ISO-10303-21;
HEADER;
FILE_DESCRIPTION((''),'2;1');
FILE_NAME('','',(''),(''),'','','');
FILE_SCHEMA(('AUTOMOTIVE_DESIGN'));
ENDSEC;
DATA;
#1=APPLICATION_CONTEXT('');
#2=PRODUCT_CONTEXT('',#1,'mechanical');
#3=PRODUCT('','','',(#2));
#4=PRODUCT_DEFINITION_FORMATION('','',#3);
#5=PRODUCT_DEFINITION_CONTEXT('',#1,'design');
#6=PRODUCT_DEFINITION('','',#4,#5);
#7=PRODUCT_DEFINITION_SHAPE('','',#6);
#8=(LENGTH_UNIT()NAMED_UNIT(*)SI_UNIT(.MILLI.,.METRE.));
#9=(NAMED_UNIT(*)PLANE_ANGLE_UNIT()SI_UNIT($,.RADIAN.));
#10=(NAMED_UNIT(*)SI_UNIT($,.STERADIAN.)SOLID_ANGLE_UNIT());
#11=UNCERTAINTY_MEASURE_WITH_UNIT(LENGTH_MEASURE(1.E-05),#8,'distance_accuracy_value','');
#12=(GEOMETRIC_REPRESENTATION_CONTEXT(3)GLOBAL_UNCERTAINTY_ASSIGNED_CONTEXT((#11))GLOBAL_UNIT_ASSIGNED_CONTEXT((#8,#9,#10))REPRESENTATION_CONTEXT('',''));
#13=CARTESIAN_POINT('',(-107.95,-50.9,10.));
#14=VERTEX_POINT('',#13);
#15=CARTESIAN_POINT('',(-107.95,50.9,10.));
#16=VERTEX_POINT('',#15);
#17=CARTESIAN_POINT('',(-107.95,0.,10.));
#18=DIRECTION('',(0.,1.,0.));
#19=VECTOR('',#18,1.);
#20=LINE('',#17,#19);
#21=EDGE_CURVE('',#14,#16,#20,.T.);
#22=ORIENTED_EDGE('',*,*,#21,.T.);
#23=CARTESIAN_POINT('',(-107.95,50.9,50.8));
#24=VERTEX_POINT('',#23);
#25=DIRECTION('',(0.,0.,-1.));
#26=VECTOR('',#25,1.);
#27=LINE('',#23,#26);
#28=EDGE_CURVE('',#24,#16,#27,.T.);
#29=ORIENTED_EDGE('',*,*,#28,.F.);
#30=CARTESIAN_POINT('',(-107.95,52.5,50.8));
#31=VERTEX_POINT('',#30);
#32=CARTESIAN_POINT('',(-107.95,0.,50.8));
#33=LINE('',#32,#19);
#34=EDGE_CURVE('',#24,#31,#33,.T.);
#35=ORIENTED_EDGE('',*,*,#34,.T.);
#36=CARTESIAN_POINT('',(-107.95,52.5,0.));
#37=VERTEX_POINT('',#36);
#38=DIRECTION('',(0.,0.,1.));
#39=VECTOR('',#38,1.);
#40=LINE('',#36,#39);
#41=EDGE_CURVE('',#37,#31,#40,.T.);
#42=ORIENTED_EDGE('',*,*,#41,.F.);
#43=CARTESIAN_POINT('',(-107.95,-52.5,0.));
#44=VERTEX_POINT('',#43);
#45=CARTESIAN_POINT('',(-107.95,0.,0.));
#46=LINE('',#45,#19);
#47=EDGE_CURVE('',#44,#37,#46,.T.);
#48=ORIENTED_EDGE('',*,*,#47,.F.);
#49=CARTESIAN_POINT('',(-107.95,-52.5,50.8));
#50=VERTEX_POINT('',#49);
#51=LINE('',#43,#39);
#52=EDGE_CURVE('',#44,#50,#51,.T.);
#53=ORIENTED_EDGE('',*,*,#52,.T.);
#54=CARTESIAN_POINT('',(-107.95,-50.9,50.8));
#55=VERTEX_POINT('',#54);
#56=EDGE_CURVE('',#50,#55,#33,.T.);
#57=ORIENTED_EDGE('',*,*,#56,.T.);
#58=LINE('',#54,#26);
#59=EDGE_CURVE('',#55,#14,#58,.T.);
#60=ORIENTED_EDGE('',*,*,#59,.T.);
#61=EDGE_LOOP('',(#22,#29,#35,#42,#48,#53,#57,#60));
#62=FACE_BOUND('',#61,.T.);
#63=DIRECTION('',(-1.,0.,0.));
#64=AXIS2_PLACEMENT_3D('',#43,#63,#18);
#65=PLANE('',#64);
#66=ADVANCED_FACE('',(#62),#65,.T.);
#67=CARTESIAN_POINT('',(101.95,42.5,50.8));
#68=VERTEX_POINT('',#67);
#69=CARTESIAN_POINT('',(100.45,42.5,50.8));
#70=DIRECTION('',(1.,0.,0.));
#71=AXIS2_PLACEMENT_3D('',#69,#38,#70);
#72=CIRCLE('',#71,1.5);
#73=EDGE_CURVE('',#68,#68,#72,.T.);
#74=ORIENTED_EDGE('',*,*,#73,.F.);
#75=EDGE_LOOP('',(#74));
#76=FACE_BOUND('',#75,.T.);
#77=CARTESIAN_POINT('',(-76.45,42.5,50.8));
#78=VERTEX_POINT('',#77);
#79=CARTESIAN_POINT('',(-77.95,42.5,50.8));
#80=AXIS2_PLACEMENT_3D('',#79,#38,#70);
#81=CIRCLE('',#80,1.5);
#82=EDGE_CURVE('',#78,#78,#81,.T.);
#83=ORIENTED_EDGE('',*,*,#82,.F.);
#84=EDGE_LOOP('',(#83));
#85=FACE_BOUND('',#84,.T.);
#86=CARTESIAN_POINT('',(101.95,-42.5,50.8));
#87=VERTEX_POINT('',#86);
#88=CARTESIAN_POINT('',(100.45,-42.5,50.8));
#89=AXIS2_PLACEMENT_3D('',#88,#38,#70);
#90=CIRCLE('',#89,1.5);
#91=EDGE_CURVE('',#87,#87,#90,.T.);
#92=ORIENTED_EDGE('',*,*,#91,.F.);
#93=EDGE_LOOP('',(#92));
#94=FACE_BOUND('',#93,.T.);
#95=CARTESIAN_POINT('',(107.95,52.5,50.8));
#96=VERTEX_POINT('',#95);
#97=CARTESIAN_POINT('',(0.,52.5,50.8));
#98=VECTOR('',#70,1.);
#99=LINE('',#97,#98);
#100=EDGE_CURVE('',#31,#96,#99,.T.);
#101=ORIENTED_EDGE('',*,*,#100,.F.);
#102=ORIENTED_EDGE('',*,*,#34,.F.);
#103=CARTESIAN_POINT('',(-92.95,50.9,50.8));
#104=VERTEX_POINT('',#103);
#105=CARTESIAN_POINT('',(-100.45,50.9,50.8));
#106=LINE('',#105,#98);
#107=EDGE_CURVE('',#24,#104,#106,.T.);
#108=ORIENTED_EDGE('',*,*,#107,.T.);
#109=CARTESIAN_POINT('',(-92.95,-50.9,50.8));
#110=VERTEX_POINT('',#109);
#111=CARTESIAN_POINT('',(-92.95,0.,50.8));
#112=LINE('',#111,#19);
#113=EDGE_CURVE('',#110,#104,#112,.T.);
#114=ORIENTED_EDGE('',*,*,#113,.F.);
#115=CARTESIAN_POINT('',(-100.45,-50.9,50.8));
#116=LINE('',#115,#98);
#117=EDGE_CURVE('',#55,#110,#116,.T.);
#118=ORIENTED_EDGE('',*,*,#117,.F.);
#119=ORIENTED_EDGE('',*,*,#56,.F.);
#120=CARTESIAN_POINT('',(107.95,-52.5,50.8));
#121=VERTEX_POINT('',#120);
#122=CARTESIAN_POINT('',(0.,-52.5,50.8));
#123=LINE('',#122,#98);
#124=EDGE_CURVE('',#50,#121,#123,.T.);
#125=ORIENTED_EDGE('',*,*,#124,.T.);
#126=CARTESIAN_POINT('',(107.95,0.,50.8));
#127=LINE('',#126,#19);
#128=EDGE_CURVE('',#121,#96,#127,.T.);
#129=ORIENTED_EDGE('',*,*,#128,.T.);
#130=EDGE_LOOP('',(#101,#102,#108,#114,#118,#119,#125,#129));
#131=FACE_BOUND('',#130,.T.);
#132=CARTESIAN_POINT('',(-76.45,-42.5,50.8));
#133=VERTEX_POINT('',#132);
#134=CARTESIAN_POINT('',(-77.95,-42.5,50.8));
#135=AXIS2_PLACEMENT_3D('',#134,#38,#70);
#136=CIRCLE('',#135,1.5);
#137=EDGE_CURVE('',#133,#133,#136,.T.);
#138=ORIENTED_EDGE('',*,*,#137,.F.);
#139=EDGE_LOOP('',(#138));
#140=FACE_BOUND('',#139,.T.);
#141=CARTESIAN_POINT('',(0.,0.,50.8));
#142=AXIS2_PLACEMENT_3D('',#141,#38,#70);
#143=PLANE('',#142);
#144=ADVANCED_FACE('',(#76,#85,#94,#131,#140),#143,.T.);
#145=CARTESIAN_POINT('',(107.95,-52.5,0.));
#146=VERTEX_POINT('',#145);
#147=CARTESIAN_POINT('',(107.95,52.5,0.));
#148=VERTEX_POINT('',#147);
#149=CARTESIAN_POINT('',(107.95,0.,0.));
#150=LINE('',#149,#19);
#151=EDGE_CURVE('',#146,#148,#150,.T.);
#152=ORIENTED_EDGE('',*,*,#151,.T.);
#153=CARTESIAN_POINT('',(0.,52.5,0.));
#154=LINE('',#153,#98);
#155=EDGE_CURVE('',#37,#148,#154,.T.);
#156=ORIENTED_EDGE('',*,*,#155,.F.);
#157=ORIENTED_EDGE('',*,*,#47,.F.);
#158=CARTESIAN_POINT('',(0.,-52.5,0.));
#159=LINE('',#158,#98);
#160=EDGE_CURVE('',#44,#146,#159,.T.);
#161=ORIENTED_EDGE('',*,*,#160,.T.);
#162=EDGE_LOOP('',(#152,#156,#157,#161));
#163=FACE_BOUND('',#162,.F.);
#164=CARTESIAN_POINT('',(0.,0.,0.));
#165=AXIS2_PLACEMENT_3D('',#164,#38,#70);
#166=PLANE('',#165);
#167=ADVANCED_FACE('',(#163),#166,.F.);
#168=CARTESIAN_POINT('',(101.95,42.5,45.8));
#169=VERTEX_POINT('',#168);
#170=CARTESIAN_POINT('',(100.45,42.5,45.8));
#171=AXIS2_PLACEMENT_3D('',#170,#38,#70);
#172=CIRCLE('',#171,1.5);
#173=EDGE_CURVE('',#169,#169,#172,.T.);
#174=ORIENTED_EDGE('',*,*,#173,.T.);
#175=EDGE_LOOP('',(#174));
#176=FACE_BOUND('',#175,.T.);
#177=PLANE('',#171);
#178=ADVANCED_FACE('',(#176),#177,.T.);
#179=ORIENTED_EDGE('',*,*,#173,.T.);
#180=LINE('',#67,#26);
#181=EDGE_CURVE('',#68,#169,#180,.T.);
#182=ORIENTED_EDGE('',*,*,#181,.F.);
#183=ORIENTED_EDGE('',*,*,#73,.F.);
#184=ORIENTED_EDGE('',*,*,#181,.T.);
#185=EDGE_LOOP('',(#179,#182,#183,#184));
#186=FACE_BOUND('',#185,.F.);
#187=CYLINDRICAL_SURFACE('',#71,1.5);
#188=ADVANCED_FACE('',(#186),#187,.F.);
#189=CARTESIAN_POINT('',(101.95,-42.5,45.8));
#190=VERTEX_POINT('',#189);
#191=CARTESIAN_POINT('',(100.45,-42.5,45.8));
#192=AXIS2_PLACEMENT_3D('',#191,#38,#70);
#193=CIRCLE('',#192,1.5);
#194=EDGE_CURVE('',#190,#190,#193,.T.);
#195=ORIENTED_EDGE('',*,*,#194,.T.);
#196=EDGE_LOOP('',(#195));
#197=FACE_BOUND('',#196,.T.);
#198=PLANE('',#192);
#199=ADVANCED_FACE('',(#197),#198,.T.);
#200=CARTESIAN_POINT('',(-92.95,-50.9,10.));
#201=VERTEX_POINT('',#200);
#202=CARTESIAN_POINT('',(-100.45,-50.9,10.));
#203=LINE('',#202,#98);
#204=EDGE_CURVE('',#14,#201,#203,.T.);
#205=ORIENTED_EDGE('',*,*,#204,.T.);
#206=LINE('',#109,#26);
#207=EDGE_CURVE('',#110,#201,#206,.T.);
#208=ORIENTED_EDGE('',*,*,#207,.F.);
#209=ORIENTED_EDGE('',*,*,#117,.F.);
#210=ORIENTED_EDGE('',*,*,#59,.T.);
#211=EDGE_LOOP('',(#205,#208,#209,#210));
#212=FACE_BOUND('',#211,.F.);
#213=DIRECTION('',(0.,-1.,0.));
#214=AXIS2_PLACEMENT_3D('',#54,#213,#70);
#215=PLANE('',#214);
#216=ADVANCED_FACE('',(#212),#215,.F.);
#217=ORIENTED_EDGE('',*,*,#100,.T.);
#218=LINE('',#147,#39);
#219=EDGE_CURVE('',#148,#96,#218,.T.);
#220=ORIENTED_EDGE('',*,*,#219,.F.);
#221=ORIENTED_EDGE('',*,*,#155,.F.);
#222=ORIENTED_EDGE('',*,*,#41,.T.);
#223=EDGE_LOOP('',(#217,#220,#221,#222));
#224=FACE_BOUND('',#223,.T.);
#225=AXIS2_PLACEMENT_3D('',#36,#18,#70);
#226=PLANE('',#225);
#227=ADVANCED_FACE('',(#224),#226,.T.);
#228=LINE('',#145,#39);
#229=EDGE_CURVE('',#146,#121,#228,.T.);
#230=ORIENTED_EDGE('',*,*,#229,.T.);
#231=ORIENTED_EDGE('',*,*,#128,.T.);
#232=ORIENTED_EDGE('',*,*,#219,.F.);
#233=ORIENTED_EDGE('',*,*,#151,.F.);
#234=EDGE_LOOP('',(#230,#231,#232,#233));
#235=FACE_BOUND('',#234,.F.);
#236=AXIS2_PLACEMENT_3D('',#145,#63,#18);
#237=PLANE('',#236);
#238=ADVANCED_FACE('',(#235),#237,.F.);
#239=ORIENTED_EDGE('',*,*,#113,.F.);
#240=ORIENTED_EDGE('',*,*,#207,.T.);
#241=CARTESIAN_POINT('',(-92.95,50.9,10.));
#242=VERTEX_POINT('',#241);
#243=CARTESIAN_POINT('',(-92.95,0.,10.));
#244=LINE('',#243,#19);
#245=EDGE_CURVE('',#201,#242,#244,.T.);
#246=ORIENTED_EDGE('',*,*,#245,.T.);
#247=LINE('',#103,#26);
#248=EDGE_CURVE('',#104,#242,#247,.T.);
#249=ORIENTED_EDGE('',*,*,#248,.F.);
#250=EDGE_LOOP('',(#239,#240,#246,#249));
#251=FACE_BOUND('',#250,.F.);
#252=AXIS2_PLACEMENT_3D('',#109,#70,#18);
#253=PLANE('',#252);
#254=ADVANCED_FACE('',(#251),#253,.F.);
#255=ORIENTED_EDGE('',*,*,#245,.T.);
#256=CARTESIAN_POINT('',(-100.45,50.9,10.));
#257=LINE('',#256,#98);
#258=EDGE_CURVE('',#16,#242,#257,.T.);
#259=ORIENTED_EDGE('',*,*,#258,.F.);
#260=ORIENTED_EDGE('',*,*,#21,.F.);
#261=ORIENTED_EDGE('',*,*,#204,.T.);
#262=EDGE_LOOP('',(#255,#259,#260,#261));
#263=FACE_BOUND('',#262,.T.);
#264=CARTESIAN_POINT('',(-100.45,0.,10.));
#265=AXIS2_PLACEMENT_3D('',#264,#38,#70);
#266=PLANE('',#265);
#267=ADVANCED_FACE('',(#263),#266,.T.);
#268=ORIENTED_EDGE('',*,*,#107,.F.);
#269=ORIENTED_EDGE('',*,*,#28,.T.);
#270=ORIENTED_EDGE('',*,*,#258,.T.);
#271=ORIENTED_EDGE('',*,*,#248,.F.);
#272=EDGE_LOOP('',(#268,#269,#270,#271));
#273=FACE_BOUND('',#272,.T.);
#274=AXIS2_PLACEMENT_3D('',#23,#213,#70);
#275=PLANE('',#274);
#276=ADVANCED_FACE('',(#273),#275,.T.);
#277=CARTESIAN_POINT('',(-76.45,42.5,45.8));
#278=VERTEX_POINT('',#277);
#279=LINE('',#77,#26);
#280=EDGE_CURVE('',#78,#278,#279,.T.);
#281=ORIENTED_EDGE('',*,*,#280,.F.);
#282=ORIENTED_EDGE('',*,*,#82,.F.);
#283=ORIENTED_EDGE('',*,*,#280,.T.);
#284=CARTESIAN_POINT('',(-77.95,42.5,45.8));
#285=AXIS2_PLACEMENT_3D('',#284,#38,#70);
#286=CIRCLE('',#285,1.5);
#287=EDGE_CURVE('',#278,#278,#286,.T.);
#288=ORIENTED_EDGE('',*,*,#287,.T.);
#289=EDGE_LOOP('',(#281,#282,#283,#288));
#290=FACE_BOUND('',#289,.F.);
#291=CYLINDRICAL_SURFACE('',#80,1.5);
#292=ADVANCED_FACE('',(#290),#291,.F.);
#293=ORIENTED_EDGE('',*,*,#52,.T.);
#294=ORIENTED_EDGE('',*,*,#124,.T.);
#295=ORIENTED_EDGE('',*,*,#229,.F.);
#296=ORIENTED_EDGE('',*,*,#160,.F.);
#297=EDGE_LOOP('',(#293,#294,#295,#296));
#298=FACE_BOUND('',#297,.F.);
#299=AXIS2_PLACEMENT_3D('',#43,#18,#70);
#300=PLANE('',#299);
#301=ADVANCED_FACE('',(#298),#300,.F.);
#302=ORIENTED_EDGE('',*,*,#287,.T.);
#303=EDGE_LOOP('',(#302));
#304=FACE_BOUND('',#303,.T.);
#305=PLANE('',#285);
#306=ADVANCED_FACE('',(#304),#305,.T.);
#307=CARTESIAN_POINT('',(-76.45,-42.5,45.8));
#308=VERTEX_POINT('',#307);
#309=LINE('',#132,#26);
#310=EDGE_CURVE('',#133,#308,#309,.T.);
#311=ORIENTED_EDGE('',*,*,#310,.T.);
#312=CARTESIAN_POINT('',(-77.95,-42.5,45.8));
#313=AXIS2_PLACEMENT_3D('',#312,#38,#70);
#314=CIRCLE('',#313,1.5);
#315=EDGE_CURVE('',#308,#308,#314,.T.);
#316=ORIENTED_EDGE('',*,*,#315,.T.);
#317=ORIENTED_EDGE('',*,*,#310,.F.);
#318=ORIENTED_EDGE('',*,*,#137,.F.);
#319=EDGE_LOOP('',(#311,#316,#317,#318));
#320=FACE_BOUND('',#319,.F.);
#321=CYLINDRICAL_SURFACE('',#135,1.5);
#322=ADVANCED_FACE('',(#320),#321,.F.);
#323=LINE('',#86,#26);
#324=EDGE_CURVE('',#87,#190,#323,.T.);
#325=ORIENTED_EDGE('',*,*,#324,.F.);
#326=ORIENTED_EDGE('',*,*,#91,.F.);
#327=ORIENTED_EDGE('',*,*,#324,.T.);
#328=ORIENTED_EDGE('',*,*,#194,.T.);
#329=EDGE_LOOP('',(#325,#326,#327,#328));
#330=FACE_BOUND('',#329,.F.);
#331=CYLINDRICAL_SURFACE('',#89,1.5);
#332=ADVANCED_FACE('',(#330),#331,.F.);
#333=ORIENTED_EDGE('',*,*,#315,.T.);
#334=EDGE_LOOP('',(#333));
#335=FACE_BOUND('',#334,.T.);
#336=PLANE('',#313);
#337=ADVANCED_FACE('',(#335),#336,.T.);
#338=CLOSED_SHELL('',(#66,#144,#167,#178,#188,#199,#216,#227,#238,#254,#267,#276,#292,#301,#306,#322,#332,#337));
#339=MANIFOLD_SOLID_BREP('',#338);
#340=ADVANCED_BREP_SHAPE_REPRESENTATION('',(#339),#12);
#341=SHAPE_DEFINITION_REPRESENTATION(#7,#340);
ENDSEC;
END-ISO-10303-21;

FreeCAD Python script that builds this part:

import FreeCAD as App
import Part
import Sketcher

V = App.Vector
Q = App.Units.Quantity


def add_polygon(sketch, points):
    """Adds a closed chain of lines whose ends are joined by coincident constraints."""
    first, n = sketch.GeometryCount, len(points)
    for a, b in zip(points, points[1:] + points[:1]):
        sketch.addGeometry(Part.LineSegment(App.Vector(*a, 0), App.Vector(*b, 0)), False)
    for i in range(n):
        sketch.addConstraint(Sketcher.Constraint("Coincident", first + i, 2, first + (i + 1) % n, 1))

doc = App.newDocument("Part")
body = doc.addObject("PartDesign::Body", "Body")

# Sketch on XY plane
sketch1 = body.newObject("Sketcher::SketchObject", "Sketch")
sketch1.AttachmentSupport = (doc.getObject("XY_Plane"), [""])
sketch1.MapMode = "FlatFace"
add_polygon(sketch1, [(-108, 52), (-108, -52), (108, -52), (108, 52)])  # lines 0-3
sketch1.addConstraint([
    Sketcher.Constraint("Vertical", 0),
    Sketcher.Constraint("Horizontal", 1),
    Sketcher.Constraint("Vertical", 2),
    Sketcher.Constraint("Horizontal", 3),
    Sketcher.Constraint("Symmetric", 0, 2, 2, 2, -1, 1),
    Sketcher.Constraint("DistanceY", 0, 2, 0, 1, Q("105 mm")),
    Sketcher.Constraint("DistanceX", 1, 1, 1, 2, Q("215.9 mm")),
])
pad1 = body.newObject("PartDesign::Pad", "Pad")
pad1.Profile = sketch1
pad1.Length = 50.8

# Sketch on XY plane
sketch2 = body.newObject("Sketcher::SketchObject", "Sketch001")
sketch2.AttachmentSupport = (doc.getObject("XY_Plane"), [""])
sketch2.MapMode = "FlatFace"
sketch2.AttachmentOffset = App.Placement(V(0, 0, 50.8), App.Rotation())
sketch2.addGeometry([
    Part.Circle(V(100.5, 42.5, 0), V(0, 0, 1), 1.5),
    Part.Circle(V(100.5, -42.5, 0), V(0, 0, 1), 1.5),
    Part.Circle(V(-78, -42.5, 0), V(0, 0, 1), 1.5),
    Part.Circle(V(-78, 42.5, 0), V(0, 0, 1), 1.5),
], False)
sketch2.addConstraint([
    Sketcher.Constraint("Equal", 0, 1),
    Sketcher.Constraint("Equal", 1, 2),
    Sketcher.Constraint("Equal", 2, 3),
    Sketcher.Constraint("Symmetric", 0, 3, 1, 3, -1),
    Sketcher.Constraint("Symmetric", 2, 3, 3, 3, -1),
    Sketcher.Constraint("Horizontal", 1, 3, 2, 3),
    Sketcher.Constraint("Diameter", 0, Q("3 mm")),
    Sketcher.Constraint("DistanceY", 1, 3, 0, 3, Q("85 mm")),
    Sketcher.Constraint("DistanceX", 2, 3, 1, 3, Q("178.4 mm")),
    Sketcher.Constraint("DistanceX", -1, 1, 0, 3, Q("100.45 mm")),
])
pocket1 = body.newObject("PartDesign::Pocket", "Pocket")
pocket1.Profile = sketch2
pocket1.Length = 5

# Sketch on XY plane
sketch3 = body.newObject("Sketcher::SketchObject", "Sketch002")
sketch3.AttachmentSupport = (doc.getObject("XY_Plane"), [""])
sketch3.MapMode = "FlatFace"
sketch3.AttachmentOffset = App.Placement(V(0, 0, 50.8), App.Rotation())
add_polygon(sketch3, [(-108, 51), (-108, -51), (-93, -51), (-93, 51)])  # lines 0-3
sketch3.addConstraint([
    Sketcher.Constraint("Vertical", 0),
    Sketcher.Constraint("Horizontal", 1),
    Sketcher.Constraint("Vertical", 2),
    Sketcher.Constraint("Horizontal", 3),
    Sketcher.Constraint("DistanceX", 1, 1, 1, 2, Q("15 mm")),
    Sketcher.Constraint("DistanceY", 0, 2, 0, 1, Q("101.8 mm")),
    Sketcher.Constraint("DistanceY", 0, 2, -1, 1, Q("50.9 mm")),
    Sketcher.Constraint("DistanceX", 0, 2, -1, 1, Q("107.95 mm")),
])
pocket2 = body.newObject("PartDesign::Pocket", "Pocket001")
pocket2.Profile = sketch3
pocket2.Length = 40.8

doc.recompute()
